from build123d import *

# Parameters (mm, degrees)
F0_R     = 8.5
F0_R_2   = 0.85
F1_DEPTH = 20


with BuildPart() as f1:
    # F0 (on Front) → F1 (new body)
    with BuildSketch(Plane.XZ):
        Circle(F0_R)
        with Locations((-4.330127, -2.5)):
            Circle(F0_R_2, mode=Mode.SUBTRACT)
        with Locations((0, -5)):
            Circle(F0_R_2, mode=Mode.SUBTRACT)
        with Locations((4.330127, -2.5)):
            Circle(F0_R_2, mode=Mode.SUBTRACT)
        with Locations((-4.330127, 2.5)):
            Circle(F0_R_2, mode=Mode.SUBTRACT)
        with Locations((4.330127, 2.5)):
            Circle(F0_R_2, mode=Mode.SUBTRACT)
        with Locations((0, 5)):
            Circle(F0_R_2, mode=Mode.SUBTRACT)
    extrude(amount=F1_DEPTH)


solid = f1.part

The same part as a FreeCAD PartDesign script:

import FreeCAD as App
import Part
import Sketcher
from FreeCAD import Vector

doc = App.newDocument("Part")
body = doc.addObject("PartDesign::Body", "Body")

# Sketch on XZ plane
sketch1 = body.newObject("Sketcher::SketchObject", "Sketch")
sketch1.AttachmentSupport = (doc.getObject("XZ_Plane"), [""])
sketch1.MapMode = "FlatFace"
sketch1.addGeometry(Part.Circle(Vector(0, 0, 0), Vector(0, 0, 1), 8.5), False)
sketch1.addGeometry(Part.Circle(Vector(-4.330127, -2.5, 0), Vector(0, 0, 1), 0.85), False)
sketch1.addGeometry(Part.Circle(Vector(0, -5, 0), Vector(0, 0, 1), 0.85), False)
sketch1.addGeometry(Part.Circle(Vector(4.330127, -2.5, 0), Vector(0, 0, 1), 0.85), False)
sketch1.addGeometry(Part.Circle(Vector(-4.330127, 2.5, 0), Vector(0, 0, 1), 0.85), False)
sketch1.addGeometry(Part.Circle(Vector(4.330127, 2.5, 0), Vector(0, 0, 1), 0.85), False)
sketch1.addGeometry(Part.Circle(Vector(0, 5, 0), Vector(0, 0, 1), 0.85), False)
sketch1.addConstraint(Sketcher.Constraint("Coincident", 0, 3, -1, 1))
sketch1.addConstraint(Sketcher.Constraint("Equal", 1, 2))
sketch1.addConstraint(Sketcher.Constraint("Equal", 2, 3))
sketch1.addConstraint(Sketcher.Constraint("Equal", 3, 4))
sketch1.addConstraint(Sketcher.Constraint("Equal", 4, 5))
sketch1.addConstraint(Sketcher.Constraint("Equal", 5, 6))
sketch1.addConstraint(Sketcher.Constraint("Symmetric", 3, 3, 4, 3, -1, 1))
sketch1.addConstraint(Sketcher.Constraint("Symmetric", 1, 3, 5, 3, -1, 1))
sketch1.addConstraint(Sketcher.Constraint("Symmetric", 2, 3, 6, 3, -1, 1))
sketch1.addConstraint(Sketcher.Constraint("Symmetric", 1, 3, 3, 3, -2))
sketch1.addConstraint(Sketcher.Constraint("PointOnObject", 2, 3, -2))
sketch1.addConstraint(Sketcher.Constraint("Diameter", 0, 17.0))
sketch1.addConstraint(Sketcher.Constraint("Diameter", 1, 1.7))
sketch1.addConstraint(Sketcher.Constraint("DistanceY", 2, 3, -1, 1, 5.0))
sketch1.addConstraint(Sketcher.Constraint("DistanceY", 1, 3, 4, 3, 5.0))
sketch1.addConstraint(Sketcher.Constraint("DistanceX", 1, 3, -1, 1, 4.330127))
pad1 = body.newObject("PartDesign::Pad", "Pad")
pad1.Profile = sketch1
pad1.Length = 20

doc.recompute()
